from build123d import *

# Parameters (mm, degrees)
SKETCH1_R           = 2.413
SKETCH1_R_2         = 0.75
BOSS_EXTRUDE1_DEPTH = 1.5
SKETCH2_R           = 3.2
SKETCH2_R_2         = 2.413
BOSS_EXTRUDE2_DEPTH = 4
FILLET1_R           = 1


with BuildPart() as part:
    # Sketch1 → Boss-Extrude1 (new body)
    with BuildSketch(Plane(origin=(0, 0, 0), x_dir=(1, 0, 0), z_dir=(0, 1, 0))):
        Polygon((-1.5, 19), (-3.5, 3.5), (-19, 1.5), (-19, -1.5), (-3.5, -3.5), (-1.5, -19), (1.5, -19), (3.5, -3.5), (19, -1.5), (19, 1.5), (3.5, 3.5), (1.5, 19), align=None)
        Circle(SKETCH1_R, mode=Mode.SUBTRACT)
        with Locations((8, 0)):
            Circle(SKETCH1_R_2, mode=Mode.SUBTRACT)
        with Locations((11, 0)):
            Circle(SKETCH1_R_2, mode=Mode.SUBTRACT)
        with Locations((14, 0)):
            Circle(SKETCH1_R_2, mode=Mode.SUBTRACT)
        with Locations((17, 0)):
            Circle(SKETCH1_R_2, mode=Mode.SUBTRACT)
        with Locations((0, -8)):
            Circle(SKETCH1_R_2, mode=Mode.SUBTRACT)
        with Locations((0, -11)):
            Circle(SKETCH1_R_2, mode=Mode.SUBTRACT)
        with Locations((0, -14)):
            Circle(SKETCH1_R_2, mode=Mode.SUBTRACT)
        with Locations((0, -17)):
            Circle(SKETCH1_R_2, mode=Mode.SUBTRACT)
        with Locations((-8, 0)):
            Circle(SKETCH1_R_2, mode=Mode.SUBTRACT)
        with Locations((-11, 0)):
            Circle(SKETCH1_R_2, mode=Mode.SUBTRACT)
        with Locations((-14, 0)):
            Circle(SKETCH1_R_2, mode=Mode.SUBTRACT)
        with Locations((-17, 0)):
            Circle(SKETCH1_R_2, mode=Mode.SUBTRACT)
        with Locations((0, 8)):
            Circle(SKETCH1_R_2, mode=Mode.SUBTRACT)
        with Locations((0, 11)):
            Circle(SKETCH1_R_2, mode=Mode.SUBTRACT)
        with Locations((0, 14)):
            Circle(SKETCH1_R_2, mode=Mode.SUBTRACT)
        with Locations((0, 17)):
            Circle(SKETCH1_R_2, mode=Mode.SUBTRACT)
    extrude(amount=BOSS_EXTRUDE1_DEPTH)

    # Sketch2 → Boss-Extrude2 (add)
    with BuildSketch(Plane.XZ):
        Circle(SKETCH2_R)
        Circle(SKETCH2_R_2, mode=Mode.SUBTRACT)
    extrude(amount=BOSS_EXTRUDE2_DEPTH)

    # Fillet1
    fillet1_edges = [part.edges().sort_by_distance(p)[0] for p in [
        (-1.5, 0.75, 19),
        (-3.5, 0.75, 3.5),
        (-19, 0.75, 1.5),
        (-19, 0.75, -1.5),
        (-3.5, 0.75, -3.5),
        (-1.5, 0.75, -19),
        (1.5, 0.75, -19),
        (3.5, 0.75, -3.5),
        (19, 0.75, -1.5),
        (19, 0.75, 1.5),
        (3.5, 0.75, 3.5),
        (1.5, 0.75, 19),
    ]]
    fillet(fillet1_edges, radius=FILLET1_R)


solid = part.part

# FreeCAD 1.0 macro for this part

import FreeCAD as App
import Part
import Sketcher


def edges_at(feature, points):
    """Names of the edges that pass closest to the given points."""
    edges = feature.Shape.Edges
    near = lambda p: min(range(len(edges)), key=lambda i: edges[i].distToShape(Part.Vertex(*p))[0])
    return sorted({f"Edge{near(p) + 1}" for p in points})


def add_polygon(sketch, points):
    """Adds a closed chain of lines whose ends are joined by coincident constraints."""
    first, n = sketch.GeometryCount, len(points)
    for a, b in zip(points, points[1:] + points[:1]):
        sketch.addGeometry(Part.LineSegment(App.Vector(*a, 0), App.Vector(*b, 0)), False)
    for i in range(n):
        sketch.addConstraint(Sketcher.Constraint("Coincident", first + i, 2, first + (i + 1) % n, 1))

doc = App.newDocument("Part")
body = doc.addObject("PartDesign::Body", "Body")

sketch1 = body.newObject("Sketcher::SketchObject", "Sketch")
sketch1.AttachmentSupport = (doc.getObject("XZ_Plane"), [""])
sketch1.MapMode = "FlatFace"
add_polygon(sketch1, [(-1.5, -19), (-3.5, -3.5), (-19, -1.5), (-19, 1.5), (-3.5, 3.5), (-1.5, 19), (1.5, 19), (3.5, 3.5), (19, 1.5), (19, -1.5), (3.5, -3.5), (1.5, -19)])
sketch1.addGeometry(Part.Circle(App.Vector(0, 17, 0), App.Vector(0, 0, 1), 0.75), False)
sketch1.addGeometry(Part.Circle(App.Vector(0, 14, 0), App.Vector(0, 0, 1), 0.75), False)
sketch1.addGeometry(Part.Circle(App.Vector(0, 11, 0), App.Vector(0, 0, 1), 0.75), False)
sketch1.addGeometry(Part.Circle(App.Vector(0, 8, 0), App.Vector(0, 0, 1), 0.75), False)
sketch1.addGeometry(Part.Circle(App.Vector(-17, 0, 0), App.Vector(0, 0, 1), 0.75), False)
sketch1.addGeometry(Part.Circle(App.Vector(-14, 0, 0), App.Vector(0, 0, 1), 0.75), False)
sketch1.addGeometry(Part.Circle(App.Vector(-11, 0, 0), App.Vector(0, 0, 1), 0.75), False)
sketch1.addGeometry(Part.Circle(App.Vector(-8, 0, 0), App.Vector(0, 0, 1), 0.75), False)
sketch1.addGeometry(Part.Circle(App.Vector(0, 0, 0), App.Vector(0, 0, 1), 2.413), False)
sketch1.addGeometry(Part.Circle(App.Vector(8, 0, 0), App.Vector(0, 0, 1), 0.75), False)
sketch1.addGeometry(Part.Circle(App.Vector(0, -8, 0), App.Vector(0, 0, 1), 0.75), False)
sketch1.addGeometry(Part.Circle(App.Vector(11, 0, 0), App.Vector(0, 0, 1), 0.75), False)
sketch1.addGeometry(Part.Circle(App.Vector(14, 0, 0), App.Vector(0, 0, 1), 0.75), False)
sketch1.addGeometry(Part.Circle(App.Vector(17, 0, 0), App.Vector(0, 0, 1), 0.75), False)
sketch1.addGeometry(Part.Circle(App.Vector(0, -11, 0), App.Vector(0, 0, 1), 0.75), False)
sketch1.addGeometry(Part.Circle(App.Vector(0, -14, 0), App.Vector(0, 0, 1), 0.75), False)
sketch1.addGeometry(Part.Circle(App.Vector(0, -17, 0), App.Vector(0, 0, 1), 0.75), False)
sketch1.addConstraint(Sketcher.Constraint("Vertical", 2))
sketch1.addConstraint(Sketcher.Constraint("Horizontal", 5))
sketch1.addConstraint(Sketcher.Constraint("Vertical", 8))
sketch1.addConstraint(Sketcher.Constraint("Horizontal", 11))
sketch1.addConstraint(Sketcher.Constraint("Coincident", 20, 3, -1, 1))
sketch1.addConstraint(Sketcher.Constraint("Equal", 12, 13))
sketch1.addConstraint(Sketcher.Constraint("Equal", 13, 14))
sketch1.addConstraint(Sketcher.Constraint("Equal", 14, 15))
sketch1.addConstraint(Sketcher.Constraint("Equal", 15, 16))
sketch1.addConstraint(Sketcher.Constraint("Equal", 16, 17))
sketch1.addConstraint(Sketcher.Constraint("Equal", 17, 18))
sketch1.addConstraint(Sketcher.Constraint("Equal", 18, 19))
sketch1.addConstraint(Sketcher.Constraint("Equal", 19, 21))
sketch1.addConstraint(Sketcher.Constraint("Equal", 21, 22))
sketch1.addConstraint(Sketcher.Constraint("Equal", 22, 23))
sketch1.addConstraint(Sketcher.Constraint("Equal", 23, 24))
sketch1.addConstraint(Sketcher.Constraint("Equal", 24, 25))
sketch1.addConstraint(Sketcher.Constraint("Equal", 25, 26))
sketch1.addConstraint(Sketcher.Constraint("Equal", 26, 27))
sketch1.addConstraint(Sketcher.Constraint("Equal", 27, 28))
sketch1.addConstraint(Sketcher.Constraint("Symmetric", 19, 3, 21, 3, -1, 1))
sketch1.addConstraint(Sketcher.Constraint("Symmetric", 15, 3, 22, 3, -1, 1))
sketch1.addConstraint(Sketcher.Constraint("Symmetric", 18, 3, 23, 3, -1, 1))
sketch1.addConstraint(Sketcher.Constraint("Symmetric", 17, 3, 24, 3, -1, 1))
sketch1.addConstraint(Sketcher.Constraint("Symmetric", 16, 3, 25, 3, -1, 1))
sketch1.addConstraint(Sketcher.Constraint("Symmetric", 14, 3, 26, 3, -1, 1))
sketch1.addConstraint(Sketcher.Constraint("Symmetric", 13, 3, 27, 3, -1, 1))
sketch1.addConstraint(Sketcher.Constraint("Symmetric", 12, 3, 28, 3, -1, 1))
sketch1.addConstraint(Sketcher.Constraint("Symmetric", 0, 2, 6, 2, -1, 1))
sketch1.addConstraint(Sketcher.Constraint("Symmetric", 1, 2, 7, 2, -1, 1))
sketch1.addConstraint(Sketcher.Constraint("Symmetric", 3, 2, 9, 2, -1, 1))
sketch1.addConstraint(Sketcher.Constraint("Symmetric", 4, 2, 10, 2, -1, 1))
sketch1.addConstraint(Sketcher.Constraint("Symmetric", 3, 2, 6, 2, -2))
sketch1.addConstraint(Sketcher.Constraint("PointOnObject", 12, 3, -2))
sketch1.addConstraint(Sketcher.Constraint("PointOnObject", 13, 3, -2))
sketch1.addConstraint(Sketcher.Constraint("PointOnObject", 14, 3, -2))
sketch1.addConstraint(Sketcher.Constraint("PointOnObject", 15, 3, -2))
sketch1.addConstraint(Sketcher.Constraint("PointOnObject", 16, 3, -1))
sketch1.addConstraint(Sketcher.Constraint("PointOnObject", 17, 3, -1))
sketch1.addConstraint(Sketcher.Constraint("PointOnObject", 18, 3, -1))
sketch1.addConstraint(Sketcher.Constraint("PointOnObject", 19, 3, -1))
sketch1.addConstraint(Sketcher.Constraint("Perpendicular", 0, 3))
sketch1.addConstraint(Sketcher.Constraint("Perpendicular", 1, 4))
sketch1.addConstraint(Sketcher.Constraint("Perpendicular", 3, 6))
sketch1.addConstraint(Sketcher.Constraint("Perpendicular", 6, 9))
sketch1.addConstraint(Sketcher.Constraint("Horizontal", 2, 2, 7, 2))
sketch1.addConstraint(Sketcher.Constraint("Equal", 11, 2))
sketch1.addConstraint(Sketcher.Constraint("Equal", 0, 1))
sketch1.addConstraint(Sketcher.Constraint("Diameter", 12, 1.5))
sketch1.addConstraint(Sketcher.Constraint("DistanceX", 5, 1, 5, 2, 3.0))
sketch1.addConstraint(Sketcher.Constraint("Diameter", 20, 4.826))
sketch1.addConstraint(Sketcher.Constraint("DistanceY", -1, 1, 12, 3, 17.0))
sketch1.addConstraint(Sketcher.Constraint("DistanceY", -1, 1, 13, 3, 14.0))
sketch1.addConstraint(Sketcher.Constraint("DistanceY", -1, 1, 14, 3, 11.0))
sketch1.addConstraint(Sketcher.Constraint("DistanceY", -1, 1, 15, 3, 8.0))
sketch1.addConstraint(Sketcher.Constraint("DistanceX", 16, 3, -1, 1, 17.0))
sketch1.addConstraint(Sketcher.Constraint("DistanceX", 17, 3, -1, 1, 14.0))
sketch1.addConstraint(Sketcher.Constraint("DistanceX", 18, 3, -1, 1, 11.0))
sketch1.addConstraint(Sketcher.Constraint("DistanceX", 19, 3, -1, 1, 8.0))
sketch1.addConstraint(Sketcher.Constraint("DistanceX", 1, 2, -1, 1, 19.0))
sketch1.addConstraint(Sketcher.Constraint("DistanceY", 0, 2, 1, 2, 2.0))
pad1 = body.newObject("PartDesign::Pad", "Pad")
pad1.Profile = sketch1
pad1.Length = 1.5
pad1.Reversed = True

sketch2 = body.newObject("Sketcher::SketchObject", "Sketch001")
sketch2.AttachmentSupport = (doc.getObject("XZ_Plane"), [""])
sketch2.MapMode = "FlatFace"
sketch2.addGeometry(Part.Circle(App.Vector(0, 0, 0), App.Vector(0, 0, 1), 3.2), False)
sketch2.addGeometry(Part.Circle(App.Vector(0, 0, 0), App.Vector(0, 0, 1), 2.413), False)
sketch2.addConstraint(Sketcher.Constraint("Coincident", 0, 3, -1, 1))
sketch2.addConstraint(Sketcher.Constraint("Coincident", 1, 3, -1, 1))
sketch2.addConstraint(Sketcher.Constraint("Diameter", 0, 6.4))
sketch2.addConstraint(Sketcher.Constraint("Diameter", 1, 4.826))
pad2 = body.newObject("PartDesign::Pad", "Pad001")
pad2.Profile = sketch2
pad2.Length = 4
doc.recompute()

fillet = body.newObject("PartDesign::Fillet", "Fillet")
fillet.Base = (pad2, edges_at(pad2, [
    (-1.5, 0.75, 19),
    (-3.5, 0.75, 3.5),
    (-19, 0.75, 1.5),
    (-19, 0.75, -1.5),
    (-3.5, 0.75, -3.5),
    (-1.5, 0.75, -19),
    (1.5, 0.75, -19),
    (3.5, 0.75, -3.5),
    (19, 0.75, -1.5),
    (19, 0.75, 1.5),
    (3.5, 0.75, 3.5),
    (1.5, 0.75, 19),
]))
fillet.Radius = 1

doc.recompute()
